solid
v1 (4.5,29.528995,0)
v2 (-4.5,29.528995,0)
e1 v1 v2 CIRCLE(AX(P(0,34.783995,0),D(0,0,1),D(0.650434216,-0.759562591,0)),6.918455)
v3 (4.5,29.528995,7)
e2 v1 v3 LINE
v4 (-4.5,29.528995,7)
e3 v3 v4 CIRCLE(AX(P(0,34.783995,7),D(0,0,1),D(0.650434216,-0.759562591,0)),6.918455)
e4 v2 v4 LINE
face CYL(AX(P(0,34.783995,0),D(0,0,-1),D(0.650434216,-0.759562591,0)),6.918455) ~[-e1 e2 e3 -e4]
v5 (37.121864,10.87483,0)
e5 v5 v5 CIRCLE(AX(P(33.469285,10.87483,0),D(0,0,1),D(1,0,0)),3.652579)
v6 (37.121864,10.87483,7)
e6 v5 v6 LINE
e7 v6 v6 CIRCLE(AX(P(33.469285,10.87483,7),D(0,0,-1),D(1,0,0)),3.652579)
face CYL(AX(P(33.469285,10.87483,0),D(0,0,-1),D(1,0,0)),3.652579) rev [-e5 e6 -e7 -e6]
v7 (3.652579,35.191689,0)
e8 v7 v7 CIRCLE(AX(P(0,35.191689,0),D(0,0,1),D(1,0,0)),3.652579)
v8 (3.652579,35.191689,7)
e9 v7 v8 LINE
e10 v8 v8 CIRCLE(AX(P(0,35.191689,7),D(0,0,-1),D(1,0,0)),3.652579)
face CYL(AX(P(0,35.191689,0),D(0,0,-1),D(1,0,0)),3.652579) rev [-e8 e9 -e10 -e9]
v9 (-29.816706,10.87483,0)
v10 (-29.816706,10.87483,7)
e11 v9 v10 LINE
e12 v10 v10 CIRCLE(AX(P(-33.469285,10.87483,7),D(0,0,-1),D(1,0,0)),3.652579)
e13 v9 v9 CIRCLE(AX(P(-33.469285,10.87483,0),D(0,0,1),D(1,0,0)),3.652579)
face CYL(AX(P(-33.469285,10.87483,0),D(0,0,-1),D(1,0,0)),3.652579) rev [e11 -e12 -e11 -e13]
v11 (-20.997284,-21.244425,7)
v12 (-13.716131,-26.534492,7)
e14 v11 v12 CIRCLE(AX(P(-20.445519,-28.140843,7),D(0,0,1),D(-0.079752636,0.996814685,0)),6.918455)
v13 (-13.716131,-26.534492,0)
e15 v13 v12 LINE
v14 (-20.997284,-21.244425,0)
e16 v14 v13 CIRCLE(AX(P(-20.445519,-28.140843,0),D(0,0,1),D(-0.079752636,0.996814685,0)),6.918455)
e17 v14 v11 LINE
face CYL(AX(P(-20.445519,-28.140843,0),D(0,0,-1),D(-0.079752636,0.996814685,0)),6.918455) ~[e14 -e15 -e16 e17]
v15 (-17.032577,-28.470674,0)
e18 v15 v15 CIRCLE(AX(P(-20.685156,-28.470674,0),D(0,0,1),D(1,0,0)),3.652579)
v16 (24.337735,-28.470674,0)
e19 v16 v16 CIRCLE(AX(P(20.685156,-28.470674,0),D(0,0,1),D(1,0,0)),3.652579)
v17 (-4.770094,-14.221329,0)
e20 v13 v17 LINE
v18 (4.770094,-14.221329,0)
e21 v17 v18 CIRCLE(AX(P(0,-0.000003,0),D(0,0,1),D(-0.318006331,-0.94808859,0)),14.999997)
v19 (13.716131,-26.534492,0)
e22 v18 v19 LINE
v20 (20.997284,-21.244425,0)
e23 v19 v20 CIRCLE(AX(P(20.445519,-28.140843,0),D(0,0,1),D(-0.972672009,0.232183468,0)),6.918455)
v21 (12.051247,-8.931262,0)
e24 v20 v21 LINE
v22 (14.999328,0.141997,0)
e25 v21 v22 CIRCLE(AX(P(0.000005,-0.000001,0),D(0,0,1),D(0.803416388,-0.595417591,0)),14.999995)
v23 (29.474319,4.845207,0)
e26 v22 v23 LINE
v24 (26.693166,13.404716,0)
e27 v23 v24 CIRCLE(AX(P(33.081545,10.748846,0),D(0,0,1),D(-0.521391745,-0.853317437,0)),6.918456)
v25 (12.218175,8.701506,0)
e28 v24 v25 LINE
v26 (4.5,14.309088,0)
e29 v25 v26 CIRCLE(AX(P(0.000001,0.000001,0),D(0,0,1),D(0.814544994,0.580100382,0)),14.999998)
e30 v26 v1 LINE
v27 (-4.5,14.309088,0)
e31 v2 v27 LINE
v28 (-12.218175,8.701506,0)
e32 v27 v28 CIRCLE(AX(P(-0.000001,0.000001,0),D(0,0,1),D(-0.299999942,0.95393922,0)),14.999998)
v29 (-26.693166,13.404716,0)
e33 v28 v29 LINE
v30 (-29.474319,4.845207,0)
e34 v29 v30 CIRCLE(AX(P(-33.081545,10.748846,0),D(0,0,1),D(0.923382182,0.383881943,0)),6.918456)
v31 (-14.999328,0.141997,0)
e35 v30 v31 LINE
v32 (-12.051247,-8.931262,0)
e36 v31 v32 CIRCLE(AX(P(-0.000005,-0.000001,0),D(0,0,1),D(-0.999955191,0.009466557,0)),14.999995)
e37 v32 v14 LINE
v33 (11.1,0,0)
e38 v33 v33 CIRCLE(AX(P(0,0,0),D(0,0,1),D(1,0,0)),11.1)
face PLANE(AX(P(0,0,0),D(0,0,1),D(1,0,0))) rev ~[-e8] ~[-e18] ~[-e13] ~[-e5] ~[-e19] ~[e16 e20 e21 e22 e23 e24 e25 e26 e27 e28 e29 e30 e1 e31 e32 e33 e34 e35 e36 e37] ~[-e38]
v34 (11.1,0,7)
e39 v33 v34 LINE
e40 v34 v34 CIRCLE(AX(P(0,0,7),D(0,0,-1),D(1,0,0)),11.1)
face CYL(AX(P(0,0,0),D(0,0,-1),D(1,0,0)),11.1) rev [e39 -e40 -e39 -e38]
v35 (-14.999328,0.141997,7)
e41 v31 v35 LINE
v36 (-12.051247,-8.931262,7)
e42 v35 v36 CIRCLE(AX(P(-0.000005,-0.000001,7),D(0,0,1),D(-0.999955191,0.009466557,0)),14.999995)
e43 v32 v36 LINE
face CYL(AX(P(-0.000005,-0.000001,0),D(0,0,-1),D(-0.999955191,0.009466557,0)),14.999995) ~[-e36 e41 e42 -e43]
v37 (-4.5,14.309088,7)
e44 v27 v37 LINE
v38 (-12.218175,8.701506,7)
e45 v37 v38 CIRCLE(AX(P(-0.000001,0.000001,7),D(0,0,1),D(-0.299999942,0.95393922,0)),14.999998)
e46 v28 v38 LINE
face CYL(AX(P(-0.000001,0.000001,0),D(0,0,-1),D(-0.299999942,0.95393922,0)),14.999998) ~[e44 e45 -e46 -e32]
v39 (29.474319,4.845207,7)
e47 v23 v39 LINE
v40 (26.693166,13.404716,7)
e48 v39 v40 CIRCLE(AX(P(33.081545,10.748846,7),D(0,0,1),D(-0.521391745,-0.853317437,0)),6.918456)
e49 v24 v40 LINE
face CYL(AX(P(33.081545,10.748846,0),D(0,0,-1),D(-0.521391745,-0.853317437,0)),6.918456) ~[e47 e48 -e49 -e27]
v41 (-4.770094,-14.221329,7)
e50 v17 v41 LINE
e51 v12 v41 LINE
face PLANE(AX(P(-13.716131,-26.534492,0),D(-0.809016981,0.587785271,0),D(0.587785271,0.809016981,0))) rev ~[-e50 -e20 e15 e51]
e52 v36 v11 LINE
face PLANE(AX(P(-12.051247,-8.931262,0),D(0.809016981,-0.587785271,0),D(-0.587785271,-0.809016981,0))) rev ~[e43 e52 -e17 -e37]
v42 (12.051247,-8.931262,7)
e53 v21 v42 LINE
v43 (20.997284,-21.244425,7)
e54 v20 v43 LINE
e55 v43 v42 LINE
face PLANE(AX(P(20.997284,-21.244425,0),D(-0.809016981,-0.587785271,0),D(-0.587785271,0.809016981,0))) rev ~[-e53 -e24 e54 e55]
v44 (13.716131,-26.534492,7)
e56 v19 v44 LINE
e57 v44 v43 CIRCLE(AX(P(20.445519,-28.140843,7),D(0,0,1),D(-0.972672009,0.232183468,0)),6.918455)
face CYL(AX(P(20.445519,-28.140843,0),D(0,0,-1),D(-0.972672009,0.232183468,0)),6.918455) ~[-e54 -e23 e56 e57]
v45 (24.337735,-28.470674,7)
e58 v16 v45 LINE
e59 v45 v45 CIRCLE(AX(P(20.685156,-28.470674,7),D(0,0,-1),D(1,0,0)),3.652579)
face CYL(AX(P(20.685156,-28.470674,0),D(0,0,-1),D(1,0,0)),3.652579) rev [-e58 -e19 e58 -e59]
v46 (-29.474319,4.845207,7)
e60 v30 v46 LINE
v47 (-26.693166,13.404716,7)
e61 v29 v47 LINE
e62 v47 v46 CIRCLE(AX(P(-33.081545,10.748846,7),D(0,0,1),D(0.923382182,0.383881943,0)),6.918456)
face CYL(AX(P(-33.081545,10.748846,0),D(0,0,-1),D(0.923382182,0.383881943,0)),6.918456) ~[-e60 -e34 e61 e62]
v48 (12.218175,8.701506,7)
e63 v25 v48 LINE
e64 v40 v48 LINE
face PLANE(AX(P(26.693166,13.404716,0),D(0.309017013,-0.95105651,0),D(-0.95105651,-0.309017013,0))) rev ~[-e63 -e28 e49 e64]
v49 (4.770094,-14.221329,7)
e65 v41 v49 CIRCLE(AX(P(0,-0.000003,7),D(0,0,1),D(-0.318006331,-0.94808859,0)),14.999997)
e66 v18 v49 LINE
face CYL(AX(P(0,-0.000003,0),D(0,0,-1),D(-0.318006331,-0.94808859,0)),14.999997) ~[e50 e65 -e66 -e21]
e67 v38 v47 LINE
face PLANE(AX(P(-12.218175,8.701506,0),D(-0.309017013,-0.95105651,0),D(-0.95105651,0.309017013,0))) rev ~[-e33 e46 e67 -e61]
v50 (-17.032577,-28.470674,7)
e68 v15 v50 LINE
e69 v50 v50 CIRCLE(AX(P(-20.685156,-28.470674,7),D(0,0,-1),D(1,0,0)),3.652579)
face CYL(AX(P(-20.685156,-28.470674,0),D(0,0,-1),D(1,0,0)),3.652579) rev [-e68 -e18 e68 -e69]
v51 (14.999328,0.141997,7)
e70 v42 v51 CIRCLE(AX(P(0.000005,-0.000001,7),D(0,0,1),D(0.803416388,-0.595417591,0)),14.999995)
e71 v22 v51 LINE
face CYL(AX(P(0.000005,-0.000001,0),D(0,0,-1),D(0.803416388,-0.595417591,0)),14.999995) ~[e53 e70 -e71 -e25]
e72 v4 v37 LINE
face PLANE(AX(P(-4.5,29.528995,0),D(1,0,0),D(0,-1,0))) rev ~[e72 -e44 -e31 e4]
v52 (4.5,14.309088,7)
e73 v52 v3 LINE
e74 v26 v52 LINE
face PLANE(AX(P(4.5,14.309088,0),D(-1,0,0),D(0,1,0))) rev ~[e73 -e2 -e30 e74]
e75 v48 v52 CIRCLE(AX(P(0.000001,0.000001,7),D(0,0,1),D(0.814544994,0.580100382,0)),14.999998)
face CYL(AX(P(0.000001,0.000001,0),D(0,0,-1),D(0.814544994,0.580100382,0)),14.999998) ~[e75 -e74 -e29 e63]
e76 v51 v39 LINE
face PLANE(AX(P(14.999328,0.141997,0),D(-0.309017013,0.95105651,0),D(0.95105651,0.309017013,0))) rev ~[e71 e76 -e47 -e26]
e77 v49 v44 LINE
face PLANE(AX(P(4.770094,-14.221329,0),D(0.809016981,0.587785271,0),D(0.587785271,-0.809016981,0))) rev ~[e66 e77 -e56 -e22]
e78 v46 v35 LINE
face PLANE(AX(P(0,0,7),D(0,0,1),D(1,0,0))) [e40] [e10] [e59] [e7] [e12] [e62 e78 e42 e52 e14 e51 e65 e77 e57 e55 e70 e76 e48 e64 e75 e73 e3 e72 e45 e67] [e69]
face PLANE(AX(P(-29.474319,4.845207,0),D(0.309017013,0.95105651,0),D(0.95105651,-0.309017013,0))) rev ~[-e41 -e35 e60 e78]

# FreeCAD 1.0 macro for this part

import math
import FreeCAD as App
import Part
import Sketcher

doc = App.newDocument("Part")
body = doc.addObject("PartDesign::Body", "Body")

sketch1 = doc.addObject("Sketcher::SketchObject", "Sketch")
body.addObject(sketch1)
sketch1.AttachmentSupport = (doc.XY_Plane, [""])
sketch1.MapMode = "FlatFace"
sketch1.addGeometry(Part.LineSegment(App.Vector(-4.5, 29.528995, 0), App.Vector(-4.5, 14.309088, 0)), False)
sketch1.addGeometry(Part.ArcOfCircle(Part.Circle(App.Vector(-0.000001, 0.000001, 0), App.Vector(0, 0, 1), 14.999998), math.radians(107.4576), math.radians(144.542397)), False)
sketch1.addGeometry(Part.LineSegment(App.Vector(-12.218175, 8.701506, 0), App.Vector(-26.693166, 13.404716, 0)), False)
sketch1.addGeometry(Part.ArcOfCircle(Part.Circle(App.Vector(-33.081545, 10.748846, 0), App.Vector(0, 0, 1), 6.918456), math.radians(22.574347), math.radians(301.425653)), False)
sketch1.addGeometry(Part.LineSegment(App.Vector(-29.474319, 4.845207, 0), App.Vector(-14.999328, 0.141997, 0)), False)
sketch1.addGeometry(Part.ArcOfCircle(Part.Circle(App.Vector(-0.000005, -0.000001, 0), App.Vector(0, 0, 1), 14.999995), math.radians(179.457598), math.radians(216.542407)), False)
sketch1.addGeometry(Part.LineSegment(App.Vector(-12.051247, -8.931262, 0), App.Vector(-20.997284, -21.244425, 0)), False)
sketch1.addGeometry(Part.ArcOfCircle(Part.Circle(App.Vector(-20.445519, -28.140843, 0), App.Vector(0, 0, 1), 6.918455), math.radians(94.574347), math.radians(373.425656)), False)
sketch1.addGeometry(Part.LineSegment(App.Vector(-13.716131, -26.534492, 0), App.Vector(-4.770094, -14.221329, 0)), False)
sketch1.addGeometry(Part.ArcOfCircle(Part.Circle(App.Vector(0, -0.000003, 0), App.Vector(0, 0, 1), 14.999997), math.radians(-108.542399), math.radians(-71.457601)), False)
sketch1.addGeometry(Part.LineSegment(App.Vector(4.770094, -14.221329, 0), App.Vector(13.716131, -26.534492, 0)), False)
sketch1.addGeometry(Part.ArcOfCircle(Part.Circle(App.Vector(20.445519, -28.140843, 0), App.Vector(0, 0, 1), 6.918455), math.radians(166.574344), math.radians(445.425653)), False)
sketch1.addGeometry(Part.LineSegment(App.Vector(20.997284, -21.244425, 0), App.Vector(12.051247, -8.931262, 0)), False)
sketch1.addGeometry(Part.ArcOfCircle(Part.Circle(App.Vector(0.000005, -0.000001, 0), App.Vector(0, 0, 1), 14.999995), math.radians(-36.542407), math.radians(0.542402)), False)
sketch1.addGeometry(Part.LineSegment(App.Vector(14.999328, 0.141997, 0), App.Vector(29.474319, 4.845207, 0)), False)
sketch1.addGeometry(Part.ArcOfCircle(Part.Circle(App.Vector(33.081545, 10.748846, 0), App.Vector(0, 0, 1), 6.918456), math.radians(-121.425653), math.radians(157.425653)), False)
sketch1.addGeometry(Part.LineSegment(App.Vector(26.693166, 13.404716, 0), App.Vector(12.218175, 8.701506, 0)), False)
sketch1.addGeometry(Part.ArcOfCircle(Part.Circle(App.Vector(0.000001, 0.000001, 0), App.Vector(0, 0, 1), 14.999998), math.radians(35.457603), math.radians(72.5424)), False)
sketch1.addGeometry(Part.LineSegment(App.Vector(4.5, 14.309088, 0), App.Vector(4.5, 29.528995, 0)), False)
sketch1.addGeometry(Part.ArcOfCircle(Part.Circle(App.Vector(0, 34.783995, 0), App.Vector(0, 0, 1), 6.918455), math.radians(-49.425652), math.radians(229.425652)), False)
sketch1.addConstraint(Sketcher.Constraint("Coincident", 0, 2, 1, 1))
sketch1.addConstraint(Sketcher.Constraint("Coincident", 1, 2, 2, 1))
sketch1.addConstraint(Sketcher.Constraint("Coincident", 2, 2, 3, 1))
sketch1.addConstraint(Sketcher.Constraint("Coincident", 3, 2, 4, 1))
sketch1.addConstraint(Sketcher.Constraint("Coincident", 4, 2, 5, 1))
sketch1.addConstraint(Sketcher.Constraint("Coincident", 5, 2, 6, 1))
sketch1.addConstraint(Sketcher.Constraint("Coincident", 6, 2, 7, 1))
sketch1.addConstraint(Sketcher.Constraint("Coincident", 7, 2, 8, 1))
sketch1.addConstraint(Sketcher.Constraint("Coincident", 8, 2, 9, 1))
sketch1.addConstraint(Sketcher.Constraint("Coincident", 9, 2, 10, 1))
sketch1.addConstraint(Sketcher.Constraint("Coincident", 10, 2, 11, 1))
sketch1.addConstraint(Sketcher.Constraint("Coincident", 11, 2, 12, 1))
sketch1.addConstraint(Sketcher.Constraint("Coincident", 12, 2, 13, 1))
sketch1.addConstraint(Sketcher.Constraint("Coincident", 13, 2, 14, 1))
sketch1.addConstraint(Sketcher.Constraint("Coincident", 14, 2, 15, 1))
sketch1.addConstraint(Sketcher.Constraint("Coincident", 15, 2, 16, 1))
sketch1.addConstraint(Sketcher.Constraint("Coincident", 16, 2, 17, 1))
sketch1.addConstraint(Sketcher.Constraint("Coincident", 17, 2, 18, 1))
sketch1.addConstraint(Sketcher.Constraint("Coincident", 18, 2, 19, 1))
sketch1.addConstraint(Sketcher.Constraint("Coincident", 19, 2, 0, 1))
sketch1.addConstraint(Sketcher.Constraint("Vertical", 0))
sketch1.addConstraint(Sketcher.Constraint("Vertical", 18))
sketch1.addConstraint(Sketcher.Constraint("Coincident", 1, 3, -1, 1))
sketch1.addConstraint(Sketcher.Constraint("Coincident", 5, 3, -1, 1))
sketch1.addConstraint(Sketcher.Constraint("Coincident", 9, 3, -1, 1))
sketch1.addConstraint(Sketcher.Constraint("Coincident", 13, 3, -1, 1))
sketch1.addConstraint(Sketcher.Constraint("Coincident", 17, 3, -1, 1))
sketch1.addConstraint(Sketcher.Constraint("PointOnObject", 19, 3, -2))
sketch1.addConstraint(Sketcher.Constraint("Radius", 1, 14.999998))
sketch1.addConstraint(Sketcher.Constraint("Radius", 17, 14.999998))
sketch1.addConstraint(Sketcher.Constraint("DistanceX", 0, 2, 17, 2, 9.0))
sketch1.addConstraint(Sketcher.Constraint("DistanceX", 0, 2, -1, 1, 4.5))
sketch1.addConstraint(Sketcher.Constraint("Radius", 3, 6.918456))
sketch1.addConstraint(Sketcher.Constraint("Radius", 5, 14.999995))
sketch1.addConstraint(Sketcher.Constraint("Radius", 7, 6.918455))
sketch1.addConstraint(Sketcher.Constraint("Radius", 9, 14.999997))
sketch1.addConstraint(Sketcher.Constraint("Radius", 11, 6.918455))
sketch1.addConstraint(Sketcher.Constraint("Radius", 13, 14.999995))
sketch1.addConstraint(Sketcher.Constraint("Radius", 15, 6.918456))
sketch1.addConstraint(Sketcher.Constraint("Radius", 19, 6.918455))
sketch1.addConstraint(Sketcher.Constraint("DistanceY", 5, 3, 4, 2, 0.141998))
sketch1.addConstraint(Sketcher.Constraint("DistanceY", 13, 3, 13, 2, 0.141998))
sketch1.addConstraint(Sketcher.Constraint("DistanceY", 3, 2, 1, 2, 3.856299))
sketch1.addConstraint(Sketcher.Constraint("DistanceX", 8, 2, 13, 3, 4.770099))
sketch1.addConstraint(Sketcher.Constraint("DistanceX", 5, 3, 9, 2, 4.770099))
sketch1.addConstraint(Sketcher.Constraint("DistanceY", 0, 2, 0, 1, 15.219907))
sketch1.addConstraint(Sketcher.Constraint("DistanceX", 7, 3, -1, 1, 20.445519))
sketch1.addConstraint(Sketcher.Constraint("DistanceX", -1, 1, 11, 3, 20.445519))
sketch1.addConstraint(Sketcher.Constraint("DistanceX", 3, 2, -1, 1, 29.474319))
sketch1.addConstraint(Sketcher.Constraint("DistanceX", 7, 2, -1, 1, 13.716131))
sketch1.addConstraint(Sketcher.Constraint("DistanceY", 7, 2, -1, 1, 26.534492))
sketch1.addConstraint(Sketcher.Constraint("DistanceX", -1, 1, 10, 2, 13.716131))
sketch1.addConstraint(Sketcher.Constraint("DistanceY", 10, 2, -1, 1, 26.534492))
sketch1.addConstraint(Sketcher.Constraint("DistanceX", -1, 1, 14, 2, 29.474319))
sketch1.addConstraint(Sketcher.Constraint("DistanceX", 3, 3, 5, 3, 33.081539))
sketch1.addConstraint(Sketcher.Constraint("DistanceY", 7, 3, 3, 3, 38.889689))
sketch1.addConstraint(Sketcher.Constraint("DistanceX", 13, 3, 15, 3, 33.081539))
sketch1.addConstraint(Sketcher.Constraint("DistanceY", 9, 3, 15, 3, 10.748849))
sketch1.addConstraint(Sketcher.Constraint("DistanceX", 3, 3, 2, 2, 6.388379))
sketch1.addConstraint(Sketcher.Constraint("DistanceX", 4, 2, 5, 2, 2.948081))
sketch1.addConstraint(Sketcher.Constraint("DistanceY", 6, 2, 4, 2, 21.386422))
sketch1.addConstraint(Sketcher.Constraint("DistanceX", 9, 2, 11, 2, 16.22719))
sketch1.addConstraint(Sketcher.Constraint("DistanceX", 13, 3, 12, 2, 12.051242))
sketch1.addConstraint(Sketcher.Constraint("DistanceX", 15, 2, 15, 3, 6.388379))
sketch1.addConstraint(Sketcher.Constraint("DistanceY", 13, 2, 16, 2, 8.559509))
pad1 = doc.addObject("PartDesign::Pad", "Pad")
body.addObject(pad1)
pad1.Profile = sketch1
pad1.Length = 7

sketch2 = doc.addObject("Sketcher::SketchObject", "Sketch001")
body.addObject(sketch2)
sketch2.AttachmentSupport = (doc.XY_Plane, [""])
sketch2.MapMode = "FlatFace"
sketch2.addGeometry(Part.Circle(App.Vector(0, 0, 0), App.Vector(0, 0, 1), 11), False)
sketch2.addConstraint(Sketcher.Constraint("Coincident", 0, 3, -1, 1))
sketch2.addConstraint(Sketcher.Constraint("Diameter", 0, 22.2))
pocket1 = doc.addObject("PartDesign::Pocket", "Pocket")
body.addObject(pocket1)
pocket1.Profile = sketch2
pocket1.Type = "ThroughAll"
pocket1.Reversed = True

sketch3 = doc.addObject("Sketcher::SketchObject", "Sketch002")
body.addObject(sketch3)
sketch3.AttachmentSupport = (doc.XY_Plane, [""])
sketch3.MapMode = "FlatFace"
sketch3.addGeometry(Part.Circle(App.Vector(0, 35.2, 0), App.Vector(0, 0, 1), 3.7), False)
sketch3.addGeometry(Part.Circle(App.Vector(-33.5, 10.9, 0), App.Vector(0, 0, 1), 3.7), False)
sketch3.addGeometry(Part.Circle(App.Vector(-20.7, -28.5, 0), App.Vector(0, 0, 1), 3.7), False)
sketch3.addGeometry(Part.Circle(App.Vector(20.7, -28.5, 0), App.Vector(0, 0, 1), 3.7), False)
sketch3.addGeometry(Part.Circle(App.Vector(33.5, 10.9, 0), App.Vector(0, 0, 1), 3.7), False)
sketch3.addConstraint(Sketcher.Constraint("Equal", 0, 1))
sketch3.addConstraint(Sketcher.Constraint("Equal", 1, 2))
sketch3.addConstraint(Sketcher.Constraint("Equal", 2, 3))
sketch3.addConstraint(Sketcher.Constraint("Equal", 3, 4))
sketch3.addConstraint(Sketcher.Constraint("Symmetric", 2, 3, 3, 3, -2))
sketch3.addConstraint(Sketcher.Constraint("Symmetric", 1, 3, 4, 3, -2))
sketch3.addConstraint(Sketcher.Constraint("PointOnObject", 0, 3, -2))
sketch3.addConstraint(Sketcher.Constraint("Diameter", 0, 7.305158))
sketch3.addConstraint(Sketcher.Constraint("DistanceY", -1, 1, 0, 3, 35.191689))
sketch3.addConstraint(Sketcher.Constraint("DistanceY", -1, 1, 1, 3, 10.87483))
sketch3.addConstraint(Sketcher.Constraint("DistanceX", 1, 3, 2, 3, 12.784129))
sketch3.addConstraint(Sketcher.Constraint("DistanceX", 2, 3, 3, 3, 41.370312))
sketch3.addConstraint(Sketcher.Constraint("DistanceY", 2, 3, -1, 1, 28.470674))
pocket2 = doc.addObject("PartDesign::Pocket", "Pocket001")
body.addObject(pocket2)
pocket2.Profile = sketch3
pocket2.Type = "ThroughAll"
pocket2.Reversed = True

doc.recompute()
